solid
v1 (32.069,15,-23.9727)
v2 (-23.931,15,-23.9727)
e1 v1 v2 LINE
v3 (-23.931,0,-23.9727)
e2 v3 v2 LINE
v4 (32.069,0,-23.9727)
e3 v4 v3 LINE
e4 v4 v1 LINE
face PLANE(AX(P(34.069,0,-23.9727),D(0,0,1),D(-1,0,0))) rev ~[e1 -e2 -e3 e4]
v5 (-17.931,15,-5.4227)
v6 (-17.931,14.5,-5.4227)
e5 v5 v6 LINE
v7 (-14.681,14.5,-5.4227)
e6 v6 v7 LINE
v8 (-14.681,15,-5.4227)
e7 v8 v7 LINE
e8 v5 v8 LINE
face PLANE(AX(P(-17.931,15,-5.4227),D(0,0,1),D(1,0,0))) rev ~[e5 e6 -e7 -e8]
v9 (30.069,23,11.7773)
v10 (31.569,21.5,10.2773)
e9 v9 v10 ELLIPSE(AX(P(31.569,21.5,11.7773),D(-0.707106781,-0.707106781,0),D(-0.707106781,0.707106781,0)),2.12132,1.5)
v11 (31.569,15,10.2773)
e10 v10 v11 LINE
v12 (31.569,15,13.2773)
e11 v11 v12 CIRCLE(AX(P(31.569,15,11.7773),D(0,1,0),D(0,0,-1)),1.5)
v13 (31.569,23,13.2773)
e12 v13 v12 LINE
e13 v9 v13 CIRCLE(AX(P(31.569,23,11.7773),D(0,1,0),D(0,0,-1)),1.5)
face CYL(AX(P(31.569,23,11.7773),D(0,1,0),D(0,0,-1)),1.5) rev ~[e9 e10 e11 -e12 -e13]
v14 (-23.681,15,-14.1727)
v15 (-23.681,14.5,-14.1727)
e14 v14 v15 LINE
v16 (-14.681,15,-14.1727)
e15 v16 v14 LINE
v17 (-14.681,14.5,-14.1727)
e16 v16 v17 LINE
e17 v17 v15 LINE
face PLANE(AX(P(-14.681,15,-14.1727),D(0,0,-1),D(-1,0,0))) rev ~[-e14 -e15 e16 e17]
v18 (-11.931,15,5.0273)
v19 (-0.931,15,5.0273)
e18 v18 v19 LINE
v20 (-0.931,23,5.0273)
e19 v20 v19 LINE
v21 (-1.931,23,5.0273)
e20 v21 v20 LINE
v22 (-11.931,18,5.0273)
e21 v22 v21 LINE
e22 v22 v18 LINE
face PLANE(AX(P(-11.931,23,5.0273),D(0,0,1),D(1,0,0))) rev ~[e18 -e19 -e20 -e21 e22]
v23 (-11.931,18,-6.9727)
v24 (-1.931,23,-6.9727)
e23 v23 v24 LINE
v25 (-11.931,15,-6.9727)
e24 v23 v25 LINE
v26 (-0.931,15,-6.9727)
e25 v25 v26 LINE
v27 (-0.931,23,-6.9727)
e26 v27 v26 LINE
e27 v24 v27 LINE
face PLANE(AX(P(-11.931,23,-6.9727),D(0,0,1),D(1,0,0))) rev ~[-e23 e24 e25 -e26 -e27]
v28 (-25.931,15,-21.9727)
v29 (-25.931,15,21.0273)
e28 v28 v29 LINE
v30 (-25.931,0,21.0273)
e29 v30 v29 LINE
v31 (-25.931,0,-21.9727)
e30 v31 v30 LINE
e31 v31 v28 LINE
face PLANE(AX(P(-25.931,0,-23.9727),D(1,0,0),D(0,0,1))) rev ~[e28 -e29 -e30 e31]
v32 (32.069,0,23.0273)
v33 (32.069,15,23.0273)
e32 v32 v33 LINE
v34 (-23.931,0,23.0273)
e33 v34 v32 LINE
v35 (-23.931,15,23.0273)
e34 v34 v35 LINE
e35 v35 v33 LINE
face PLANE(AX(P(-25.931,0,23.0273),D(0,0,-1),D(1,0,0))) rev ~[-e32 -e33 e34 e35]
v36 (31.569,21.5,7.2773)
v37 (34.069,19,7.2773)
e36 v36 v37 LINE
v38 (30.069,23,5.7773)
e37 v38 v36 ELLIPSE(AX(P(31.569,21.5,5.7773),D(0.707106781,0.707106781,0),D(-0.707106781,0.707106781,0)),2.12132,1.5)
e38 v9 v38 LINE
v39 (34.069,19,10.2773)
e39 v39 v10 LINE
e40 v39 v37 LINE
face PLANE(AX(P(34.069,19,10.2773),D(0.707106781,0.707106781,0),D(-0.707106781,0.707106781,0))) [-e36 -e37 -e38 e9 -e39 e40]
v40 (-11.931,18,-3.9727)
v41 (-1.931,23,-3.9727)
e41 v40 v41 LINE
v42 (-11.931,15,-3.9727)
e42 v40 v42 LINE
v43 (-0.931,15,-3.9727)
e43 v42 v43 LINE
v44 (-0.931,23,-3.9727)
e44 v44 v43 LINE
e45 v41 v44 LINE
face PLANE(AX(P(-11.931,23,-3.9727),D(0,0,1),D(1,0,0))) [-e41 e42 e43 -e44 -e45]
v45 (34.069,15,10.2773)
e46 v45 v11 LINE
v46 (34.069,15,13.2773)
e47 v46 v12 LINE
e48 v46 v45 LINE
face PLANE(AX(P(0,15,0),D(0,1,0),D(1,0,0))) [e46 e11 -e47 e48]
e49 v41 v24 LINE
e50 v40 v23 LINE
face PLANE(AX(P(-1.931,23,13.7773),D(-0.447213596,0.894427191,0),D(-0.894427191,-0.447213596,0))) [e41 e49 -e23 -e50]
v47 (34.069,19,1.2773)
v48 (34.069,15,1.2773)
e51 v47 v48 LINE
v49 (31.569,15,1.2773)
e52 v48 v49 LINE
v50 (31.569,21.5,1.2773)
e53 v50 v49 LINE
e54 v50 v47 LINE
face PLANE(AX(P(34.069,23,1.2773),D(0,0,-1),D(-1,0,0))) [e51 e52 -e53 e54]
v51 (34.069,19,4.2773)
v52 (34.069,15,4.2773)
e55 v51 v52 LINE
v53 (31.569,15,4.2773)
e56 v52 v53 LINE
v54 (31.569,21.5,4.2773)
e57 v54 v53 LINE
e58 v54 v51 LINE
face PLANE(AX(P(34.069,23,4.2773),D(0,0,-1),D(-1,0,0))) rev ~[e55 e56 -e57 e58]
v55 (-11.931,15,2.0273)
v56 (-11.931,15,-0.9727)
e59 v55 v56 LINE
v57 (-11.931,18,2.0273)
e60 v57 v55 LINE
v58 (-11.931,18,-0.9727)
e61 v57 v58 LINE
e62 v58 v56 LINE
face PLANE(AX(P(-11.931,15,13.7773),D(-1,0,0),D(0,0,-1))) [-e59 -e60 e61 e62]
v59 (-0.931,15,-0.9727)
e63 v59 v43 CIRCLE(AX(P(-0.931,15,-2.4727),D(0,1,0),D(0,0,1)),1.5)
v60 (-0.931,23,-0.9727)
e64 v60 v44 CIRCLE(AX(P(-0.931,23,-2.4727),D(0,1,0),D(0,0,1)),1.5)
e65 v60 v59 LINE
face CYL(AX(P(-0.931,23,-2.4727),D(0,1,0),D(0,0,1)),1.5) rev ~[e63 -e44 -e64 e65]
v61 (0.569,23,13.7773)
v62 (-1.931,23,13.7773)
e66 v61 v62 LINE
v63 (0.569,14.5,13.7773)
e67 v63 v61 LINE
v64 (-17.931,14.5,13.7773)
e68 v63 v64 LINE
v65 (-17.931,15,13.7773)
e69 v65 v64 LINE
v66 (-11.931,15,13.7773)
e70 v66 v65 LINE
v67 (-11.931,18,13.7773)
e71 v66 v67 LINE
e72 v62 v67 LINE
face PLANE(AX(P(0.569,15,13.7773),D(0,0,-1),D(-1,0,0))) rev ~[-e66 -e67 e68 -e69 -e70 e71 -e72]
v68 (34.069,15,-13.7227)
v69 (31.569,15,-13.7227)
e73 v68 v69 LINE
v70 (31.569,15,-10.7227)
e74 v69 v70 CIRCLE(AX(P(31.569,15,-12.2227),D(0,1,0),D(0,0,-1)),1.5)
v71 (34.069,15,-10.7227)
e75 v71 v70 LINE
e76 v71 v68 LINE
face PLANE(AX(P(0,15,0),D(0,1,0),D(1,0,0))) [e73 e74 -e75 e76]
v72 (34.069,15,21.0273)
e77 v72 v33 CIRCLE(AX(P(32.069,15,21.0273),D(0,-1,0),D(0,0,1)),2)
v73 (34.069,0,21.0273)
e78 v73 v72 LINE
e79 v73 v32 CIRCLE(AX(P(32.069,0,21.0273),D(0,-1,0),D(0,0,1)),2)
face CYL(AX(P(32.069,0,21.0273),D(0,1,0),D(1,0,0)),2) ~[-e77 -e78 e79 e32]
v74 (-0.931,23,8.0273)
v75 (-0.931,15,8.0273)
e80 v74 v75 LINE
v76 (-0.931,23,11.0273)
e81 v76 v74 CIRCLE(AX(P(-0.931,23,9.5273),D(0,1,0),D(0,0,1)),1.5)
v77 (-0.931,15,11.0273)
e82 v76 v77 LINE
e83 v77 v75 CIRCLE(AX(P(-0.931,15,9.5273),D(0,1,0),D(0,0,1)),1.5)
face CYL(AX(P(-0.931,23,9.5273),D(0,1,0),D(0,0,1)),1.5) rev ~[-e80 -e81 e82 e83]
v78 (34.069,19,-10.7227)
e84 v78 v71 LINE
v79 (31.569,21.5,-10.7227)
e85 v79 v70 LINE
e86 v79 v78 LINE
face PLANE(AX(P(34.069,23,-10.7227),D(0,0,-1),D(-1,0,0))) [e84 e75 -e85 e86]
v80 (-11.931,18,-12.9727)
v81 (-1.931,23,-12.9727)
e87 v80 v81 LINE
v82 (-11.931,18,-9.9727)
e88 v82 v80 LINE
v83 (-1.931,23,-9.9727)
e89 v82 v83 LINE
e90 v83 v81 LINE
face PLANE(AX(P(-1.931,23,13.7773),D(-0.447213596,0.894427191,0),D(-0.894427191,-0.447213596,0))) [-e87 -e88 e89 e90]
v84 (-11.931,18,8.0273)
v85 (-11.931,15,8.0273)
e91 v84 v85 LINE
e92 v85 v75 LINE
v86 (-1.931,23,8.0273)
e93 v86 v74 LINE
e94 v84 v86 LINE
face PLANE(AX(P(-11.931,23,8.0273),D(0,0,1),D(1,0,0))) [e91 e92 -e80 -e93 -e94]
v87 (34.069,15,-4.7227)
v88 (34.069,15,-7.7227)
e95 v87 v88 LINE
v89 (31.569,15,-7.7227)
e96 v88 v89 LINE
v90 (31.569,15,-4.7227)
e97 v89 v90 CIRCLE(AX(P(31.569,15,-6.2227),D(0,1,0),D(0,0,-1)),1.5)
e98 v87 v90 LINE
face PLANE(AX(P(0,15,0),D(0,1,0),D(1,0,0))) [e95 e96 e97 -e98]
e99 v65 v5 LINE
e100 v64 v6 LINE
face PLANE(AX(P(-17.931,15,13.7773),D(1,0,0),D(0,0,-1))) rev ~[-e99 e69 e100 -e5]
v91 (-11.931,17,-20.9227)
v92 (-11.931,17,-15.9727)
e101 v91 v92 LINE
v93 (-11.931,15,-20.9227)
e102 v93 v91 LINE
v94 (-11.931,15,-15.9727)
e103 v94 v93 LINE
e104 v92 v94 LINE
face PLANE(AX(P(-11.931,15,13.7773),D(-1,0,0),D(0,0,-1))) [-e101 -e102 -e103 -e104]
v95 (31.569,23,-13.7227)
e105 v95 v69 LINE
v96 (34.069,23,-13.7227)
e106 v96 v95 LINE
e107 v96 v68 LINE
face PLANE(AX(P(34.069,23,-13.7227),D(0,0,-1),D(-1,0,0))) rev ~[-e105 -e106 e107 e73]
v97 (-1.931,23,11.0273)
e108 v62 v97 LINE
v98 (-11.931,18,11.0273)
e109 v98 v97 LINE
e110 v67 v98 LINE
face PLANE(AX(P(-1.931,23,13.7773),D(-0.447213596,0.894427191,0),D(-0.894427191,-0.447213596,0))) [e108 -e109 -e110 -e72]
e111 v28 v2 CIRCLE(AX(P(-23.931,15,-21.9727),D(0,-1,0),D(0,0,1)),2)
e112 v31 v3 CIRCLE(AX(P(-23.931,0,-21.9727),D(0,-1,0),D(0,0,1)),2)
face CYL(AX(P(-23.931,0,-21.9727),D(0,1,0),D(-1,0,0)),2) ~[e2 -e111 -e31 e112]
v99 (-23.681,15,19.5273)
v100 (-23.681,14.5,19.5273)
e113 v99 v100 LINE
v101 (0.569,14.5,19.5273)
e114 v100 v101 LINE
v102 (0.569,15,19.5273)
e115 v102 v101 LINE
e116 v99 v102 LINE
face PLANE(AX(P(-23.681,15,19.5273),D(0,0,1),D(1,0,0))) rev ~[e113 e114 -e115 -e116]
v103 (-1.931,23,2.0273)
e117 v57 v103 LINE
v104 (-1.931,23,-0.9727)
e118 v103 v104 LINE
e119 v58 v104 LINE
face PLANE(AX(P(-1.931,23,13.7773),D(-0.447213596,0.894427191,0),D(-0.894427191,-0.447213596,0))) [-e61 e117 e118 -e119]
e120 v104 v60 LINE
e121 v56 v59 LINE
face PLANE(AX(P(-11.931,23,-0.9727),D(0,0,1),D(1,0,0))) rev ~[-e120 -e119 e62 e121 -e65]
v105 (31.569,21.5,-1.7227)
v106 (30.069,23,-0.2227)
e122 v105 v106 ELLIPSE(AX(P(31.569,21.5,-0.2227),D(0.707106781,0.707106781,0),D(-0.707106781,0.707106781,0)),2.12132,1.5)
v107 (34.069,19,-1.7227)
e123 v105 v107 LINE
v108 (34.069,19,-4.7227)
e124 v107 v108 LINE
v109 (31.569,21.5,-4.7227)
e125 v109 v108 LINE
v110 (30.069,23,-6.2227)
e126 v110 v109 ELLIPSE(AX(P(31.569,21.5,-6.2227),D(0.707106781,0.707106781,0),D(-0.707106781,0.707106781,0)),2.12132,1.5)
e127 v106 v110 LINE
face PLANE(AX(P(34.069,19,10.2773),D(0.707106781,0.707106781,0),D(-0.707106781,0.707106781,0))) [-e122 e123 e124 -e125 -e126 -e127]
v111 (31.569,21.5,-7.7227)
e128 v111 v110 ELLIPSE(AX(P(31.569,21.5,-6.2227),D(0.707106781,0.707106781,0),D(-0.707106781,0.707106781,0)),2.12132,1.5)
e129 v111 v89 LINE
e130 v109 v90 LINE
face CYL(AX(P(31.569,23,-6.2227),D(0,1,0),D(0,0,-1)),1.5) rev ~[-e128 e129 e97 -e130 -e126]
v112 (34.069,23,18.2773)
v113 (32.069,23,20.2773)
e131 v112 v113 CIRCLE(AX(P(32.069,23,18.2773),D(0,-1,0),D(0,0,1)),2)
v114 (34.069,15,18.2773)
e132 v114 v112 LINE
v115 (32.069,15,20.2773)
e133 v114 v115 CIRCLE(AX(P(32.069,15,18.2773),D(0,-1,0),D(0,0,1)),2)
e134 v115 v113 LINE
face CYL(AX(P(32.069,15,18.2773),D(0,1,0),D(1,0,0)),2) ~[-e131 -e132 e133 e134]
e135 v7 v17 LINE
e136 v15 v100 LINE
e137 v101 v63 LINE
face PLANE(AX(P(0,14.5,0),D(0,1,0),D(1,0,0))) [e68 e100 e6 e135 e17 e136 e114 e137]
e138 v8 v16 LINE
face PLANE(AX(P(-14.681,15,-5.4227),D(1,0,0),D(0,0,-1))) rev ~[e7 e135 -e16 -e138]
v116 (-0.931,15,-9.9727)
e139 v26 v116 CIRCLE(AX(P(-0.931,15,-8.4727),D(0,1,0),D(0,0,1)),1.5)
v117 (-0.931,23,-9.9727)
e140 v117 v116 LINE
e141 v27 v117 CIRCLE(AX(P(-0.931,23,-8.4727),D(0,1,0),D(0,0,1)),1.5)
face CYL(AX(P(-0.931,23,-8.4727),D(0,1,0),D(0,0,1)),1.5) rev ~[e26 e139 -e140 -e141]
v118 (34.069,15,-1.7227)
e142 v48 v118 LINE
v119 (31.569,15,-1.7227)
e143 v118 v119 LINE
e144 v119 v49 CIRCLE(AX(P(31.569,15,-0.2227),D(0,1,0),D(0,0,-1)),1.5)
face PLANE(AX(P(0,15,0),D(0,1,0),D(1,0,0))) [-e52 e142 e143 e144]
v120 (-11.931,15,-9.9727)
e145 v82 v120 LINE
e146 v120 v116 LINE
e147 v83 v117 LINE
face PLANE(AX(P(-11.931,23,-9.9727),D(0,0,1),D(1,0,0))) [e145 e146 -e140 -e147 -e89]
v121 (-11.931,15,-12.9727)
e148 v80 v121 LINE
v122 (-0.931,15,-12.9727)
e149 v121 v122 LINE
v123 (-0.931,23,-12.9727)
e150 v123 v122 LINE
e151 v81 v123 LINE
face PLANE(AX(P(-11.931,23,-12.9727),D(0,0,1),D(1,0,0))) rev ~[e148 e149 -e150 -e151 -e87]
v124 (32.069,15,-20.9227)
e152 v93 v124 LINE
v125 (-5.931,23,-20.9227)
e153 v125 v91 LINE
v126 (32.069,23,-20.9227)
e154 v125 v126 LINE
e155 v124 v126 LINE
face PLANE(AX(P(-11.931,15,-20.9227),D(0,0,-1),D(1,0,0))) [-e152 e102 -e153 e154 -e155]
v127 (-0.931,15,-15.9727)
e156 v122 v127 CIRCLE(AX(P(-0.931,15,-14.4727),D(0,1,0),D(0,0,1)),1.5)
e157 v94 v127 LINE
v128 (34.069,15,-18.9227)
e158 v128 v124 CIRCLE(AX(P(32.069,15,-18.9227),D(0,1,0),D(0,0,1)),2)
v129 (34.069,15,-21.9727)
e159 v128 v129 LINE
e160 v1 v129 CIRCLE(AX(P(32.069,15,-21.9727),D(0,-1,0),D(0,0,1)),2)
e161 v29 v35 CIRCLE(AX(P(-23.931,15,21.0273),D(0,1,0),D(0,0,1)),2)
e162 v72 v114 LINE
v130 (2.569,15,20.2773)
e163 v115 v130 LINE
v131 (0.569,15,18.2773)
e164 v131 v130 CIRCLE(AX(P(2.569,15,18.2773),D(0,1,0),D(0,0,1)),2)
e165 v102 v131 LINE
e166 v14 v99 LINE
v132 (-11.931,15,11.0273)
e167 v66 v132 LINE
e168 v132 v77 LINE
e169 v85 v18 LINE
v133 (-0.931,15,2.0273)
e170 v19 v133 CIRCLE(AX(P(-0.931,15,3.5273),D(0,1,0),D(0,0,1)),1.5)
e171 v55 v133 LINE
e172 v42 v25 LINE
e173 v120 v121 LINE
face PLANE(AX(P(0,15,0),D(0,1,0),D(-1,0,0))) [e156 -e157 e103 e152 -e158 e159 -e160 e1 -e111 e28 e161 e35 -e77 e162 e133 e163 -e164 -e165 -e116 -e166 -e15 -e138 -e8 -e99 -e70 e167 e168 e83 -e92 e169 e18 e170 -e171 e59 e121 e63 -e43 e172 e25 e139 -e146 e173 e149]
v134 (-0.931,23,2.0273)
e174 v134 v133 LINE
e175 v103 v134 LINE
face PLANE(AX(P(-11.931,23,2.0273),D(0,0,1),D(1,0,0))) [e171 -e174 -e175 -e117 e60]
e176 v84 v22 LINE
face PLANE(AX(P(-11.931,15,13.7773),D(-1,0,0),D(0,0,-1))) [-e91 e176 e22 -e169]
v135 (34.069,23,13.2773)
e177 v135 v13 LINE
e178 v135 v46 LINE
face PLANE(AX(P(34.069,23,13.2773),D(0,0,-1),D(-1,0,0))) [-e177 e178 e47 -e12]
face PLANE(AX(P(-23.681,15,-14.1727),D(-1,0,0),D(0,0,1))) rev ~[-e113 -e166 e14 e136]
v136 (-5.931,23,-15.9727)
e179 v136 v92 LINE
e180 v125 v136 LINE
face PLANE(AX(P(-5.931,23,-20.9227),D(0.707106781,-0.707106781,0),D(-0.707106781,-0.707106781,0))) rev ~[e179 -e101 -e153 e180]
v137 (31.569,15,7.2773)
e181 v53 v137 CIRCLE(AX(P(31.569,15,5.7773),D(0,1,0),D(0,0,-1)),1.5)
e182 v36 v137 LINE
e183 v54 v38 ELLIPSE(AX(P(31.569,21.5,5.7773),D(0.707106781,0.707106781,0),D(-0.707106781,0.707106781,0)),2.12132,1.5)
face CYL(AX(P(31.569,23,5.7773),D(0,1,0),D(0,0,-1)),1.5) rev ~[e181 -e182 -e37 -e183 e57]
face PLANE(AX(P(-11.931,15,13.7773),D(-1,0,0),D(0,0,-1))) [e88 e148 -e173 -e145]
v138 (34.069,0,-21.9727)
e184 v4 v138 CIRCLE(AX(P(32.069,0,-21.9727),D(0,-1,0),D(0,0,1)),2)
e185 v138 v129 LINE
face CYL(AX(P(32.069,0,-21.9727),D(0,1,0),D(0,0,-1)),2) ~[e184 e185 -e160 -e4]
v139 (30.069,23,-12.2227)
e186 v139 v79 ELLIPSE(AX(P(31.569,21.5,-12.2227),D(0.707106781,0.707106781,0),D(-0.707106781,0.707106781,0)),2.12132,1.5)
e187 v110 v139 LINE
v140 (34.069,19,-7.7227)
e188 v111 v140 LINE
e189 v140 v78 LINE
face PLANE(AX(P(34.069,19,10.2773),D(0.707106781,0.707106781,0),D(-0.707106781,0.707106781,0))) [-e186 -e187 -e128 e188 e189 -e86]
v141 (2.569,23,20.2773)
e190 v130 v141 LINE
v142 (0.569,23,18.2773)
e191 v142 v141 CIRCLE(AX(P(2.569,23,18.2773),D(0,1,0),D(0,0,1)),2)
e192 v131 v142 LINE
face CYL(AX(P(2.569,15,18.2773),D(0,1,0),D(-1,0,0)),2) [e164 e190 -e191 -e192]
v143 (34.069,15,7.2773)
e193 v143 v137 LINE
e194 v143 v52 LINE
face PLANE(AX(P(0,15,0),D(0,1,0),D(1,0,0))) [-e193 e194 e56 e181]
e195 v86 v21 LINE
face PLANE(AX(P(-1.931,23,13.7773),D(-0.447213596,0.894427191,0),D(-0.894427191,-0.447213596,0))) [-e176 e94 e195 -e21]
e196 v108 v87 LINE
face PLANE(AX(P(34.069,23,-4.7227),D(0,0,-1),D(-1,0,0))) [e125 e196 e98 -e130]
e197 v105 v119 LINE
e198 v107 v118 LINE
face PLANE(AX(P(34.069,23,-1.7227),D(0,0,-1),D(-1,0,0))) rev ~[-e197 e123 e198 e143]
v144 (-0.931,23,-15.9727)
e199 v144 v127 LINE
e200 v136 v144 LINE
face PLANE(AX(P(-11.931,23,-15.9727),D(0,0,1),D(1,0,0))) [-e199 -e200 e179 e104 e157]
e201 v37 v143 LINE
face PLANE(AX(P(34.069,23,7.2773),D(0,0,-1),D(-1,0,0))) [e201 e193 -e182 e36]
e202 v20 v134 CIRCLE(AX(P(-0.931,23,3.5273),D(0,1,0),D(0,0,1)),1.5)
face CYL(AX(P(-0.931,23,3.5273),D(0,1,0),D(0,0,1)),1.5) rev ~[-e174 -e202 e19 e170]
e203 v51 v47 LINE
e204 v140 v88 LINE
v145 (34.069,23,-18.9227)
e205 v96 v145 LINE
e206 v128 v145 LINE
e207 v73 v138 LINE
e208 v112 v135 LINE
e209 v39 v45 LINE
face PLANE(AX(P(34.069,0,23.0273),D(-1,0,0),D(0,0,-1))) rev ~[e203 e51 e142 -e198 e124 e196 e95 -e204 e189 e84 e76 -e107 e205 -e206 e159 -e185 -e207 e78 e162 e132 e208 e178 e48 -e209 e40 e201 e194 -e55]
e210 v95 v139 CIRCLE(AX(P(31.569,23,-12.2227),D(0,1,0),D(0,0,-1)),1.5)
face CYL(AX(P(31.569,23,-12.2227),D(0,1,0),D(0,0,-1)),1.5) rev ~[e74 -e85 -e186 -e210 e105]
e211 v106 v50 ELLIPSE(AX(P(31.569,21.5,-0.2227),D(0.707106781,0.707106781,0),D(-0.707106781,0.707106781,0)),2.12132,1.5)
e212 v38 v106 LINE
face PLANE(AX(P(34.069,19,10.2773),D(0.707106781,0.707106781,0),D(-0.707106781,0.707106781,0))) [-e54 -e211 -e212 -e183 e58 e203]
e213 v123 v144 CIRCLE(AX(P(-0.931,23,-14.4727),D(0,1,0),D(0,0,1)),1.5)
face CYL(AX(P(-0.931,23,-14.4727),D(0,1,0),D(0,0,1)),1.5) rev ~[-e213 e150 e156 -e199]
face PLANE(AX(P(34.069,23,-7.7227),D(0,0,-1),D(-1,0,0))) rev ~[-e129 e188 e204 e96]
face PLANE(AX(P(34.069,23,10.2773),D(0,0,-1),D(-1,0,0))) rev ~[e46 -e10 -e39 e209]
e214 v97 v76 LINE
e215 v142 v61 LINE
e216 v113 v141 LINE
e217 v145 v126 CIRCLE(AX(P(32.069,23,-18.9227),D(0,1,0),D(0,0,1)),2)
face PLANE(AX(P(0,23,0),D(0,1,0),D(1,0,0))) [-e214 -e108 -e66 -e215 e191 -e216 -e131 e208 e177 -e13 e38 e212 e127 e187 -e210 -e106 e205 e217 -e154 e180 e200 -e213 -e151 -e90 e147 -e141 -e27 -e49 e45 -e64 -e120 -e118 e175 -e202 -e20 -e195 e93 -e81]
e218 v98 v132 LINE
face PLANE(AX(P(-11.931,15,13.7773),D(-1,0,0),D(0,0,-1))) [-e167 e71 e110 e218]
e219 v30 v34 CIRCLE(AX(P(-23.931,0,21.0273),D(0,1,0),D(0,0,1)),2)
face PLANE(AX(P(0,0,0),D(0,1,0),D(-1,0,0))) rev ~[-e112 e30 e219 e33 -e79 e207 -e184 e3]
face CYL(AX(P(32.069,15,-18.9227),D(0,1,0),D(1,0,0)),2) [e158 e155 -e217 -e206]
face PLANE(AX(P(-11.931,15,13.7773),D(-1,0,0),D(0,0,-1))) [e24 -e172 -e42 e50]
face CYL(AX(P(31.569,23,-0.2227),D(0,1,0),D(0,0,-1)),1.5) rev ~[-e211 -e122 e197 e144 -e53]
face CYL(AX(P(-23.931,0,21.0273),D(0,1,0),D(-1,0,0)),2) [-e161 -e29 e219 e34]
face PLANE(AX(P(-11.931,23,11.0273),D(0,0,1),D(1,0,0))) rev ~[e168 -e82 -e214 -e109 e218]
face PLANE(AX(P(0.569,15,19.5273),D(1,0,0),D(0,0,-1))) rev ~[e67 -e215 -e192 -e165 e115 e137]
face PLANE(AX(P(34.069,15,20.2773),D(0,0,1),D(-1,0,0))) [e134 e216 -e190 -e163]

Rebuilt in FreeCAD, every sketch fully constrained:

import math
import FreeCAD as App
import Part
import Sketcher

V = App.Vector


def edges_at(feature, points):
    """Names of the edges that pass closest to the given points."""
    edges = feature.Shape.Edges
    near = lambda p: min(range(len(edges)), key=lambda i: edges[i].distToShape(Part.Vertex(*p))[0])
    return sorted({f"Edge{near(p) + 1}" for p in points})

doc = App.newDocument("Part")
body = doc.addObject("PartDesign::Body", "Body")

# Sketch on XZ plane
sketch1 = body.newObject("Sketcher::SketchObject", "Sketch")
sketch1.AttachmentSupport = (doc.getObject("XZ_Plane"), [""])
sketch1.MapMode = "FlatFace"
sketch1.addGeometry(Part.LineSegment(V(-26, -24, 0), V(-26, 23, 0)), False)
sketch1.addGeometry(Part.LineSegment(V(-26, 23, 0), V(34, 23, 0)), False)
sketch1.addGeometry(Part.LineSegment(V(34, 23, 0), V(34, -24, 0)), False)
sketch1.addGeometry(Part.LineSegment(V(34, -24, 0), V(-26, -24, 0)), False)
sketch1.addConstraint(Sketcher.Constraint("Coincident", 0, 2, 1, 1))
sketch1.addConstraint(Sketcher.Constraint("Coincident", 1, 2, 2, 1))
sketch1.addConstraint(Sketcher.Constraint("Coincident", 2, 2, 3, 1))
sketch1.addConstraint(Sketcher.Constraint("Coincident", 3, 2, 0, 1))
sketch1.addConstraint(Sketcher.Constraint("Vertical", 0))
sketch1.addConstraint(Sketcher.Constraint("Horizontal", 1))
sketch1.addConstraint(Sketcher.Constraint("Vertical", 2))
sketch1.addConstraint(Sketcher.Constraint("Horizontal", 3))
sketch1.addConstraint(Sketcher.Constraint("DistanceX", 1, 1, 1, 2, 60.0))
sketch1.addConstraint(Sketcher.Constraint("DistanceY", 0, 1, 0, 2, 47.0))
sketch1.addConstraint(Sketcher.Constraint("DistanceX", 0, 2, -1, 1, 25.931))
sketch1.addConstraint(Sketcher.Constraint("DistanceY", -1, 1, 0, 2, 23.0273))
pad1 = body.newObject("PartDesign::Pad", "Pad")
pad1.Profile = sketch1
pad1.Length = 15
pad1.Reversed = True
doc.recompute()

fillet = body.newObject("PartDesign::Fillet", "Fillet")
fillet.Base = (pad1, edges_at(pad1, [
    (34.069, 7.5, 23.027),
    (34.069, 7.5, -23.973),
    (-25.931, 7.5, 23.027),
    (-25.931, 7.5, -23.973),
]))
fillet.Radius = 2

# Sketch on XZ plane
sketch2 = body.newObject("Sketcher::SketchObject", "Sketch001")
sketch2.AttachmentSupport = (doc.getObject("XZ_Plane"), [""])
sketch2.MapMode = "FlatFace"
sketch2.AttachmentOffset = App.Placement(V(0, 0, -15), App.Rotation())
sketch2.addGeometry(Part.LineSegment(V(1, 20, 0), V(34, 20, 0)), False)
sketch2.addGeometry(Part.LineSegment(V(34, 20, 0), V(34, -21, 0)), False)
sketch2.addGeometry(Part.LineSegment(V(34, -21, 0), V(-12, -21, 0)), False)
sketch2.addGeometry(Part.LineSegment(V(-12, -21, 0), V(-12, 14, 0)), False)
sketch2.addGeometry(Part.LineSegment(V(-12, 14, 0), V(1, 14, 0)), False)
sketch2.addGeometry(Part.LineSegment(V(1, 14, 0), V(1, 20, 0)), False)
sketch2.addConstraint(Sketcher.Constraint("Coincident", 0, 2, 1, 1))
sketch2.addConstraint(Sketcher.Constraint("Coincident", 1, 2, 2, 1))
sketch2.addConstraint(Sketcher.Constraint("Coincident", 2, 2, 3, 1))
sketch2.addConstraint(Sketcher.Constraint("Coincident", 3, 2, 4, 1))
sketch2.addConstraint(Sketcher.Constraint("Coincident", 4, 2, 5, 1))
sketch2.addConstraint(Sketcher.Constraint("Coincident", 5, 2, 0, 1))
sketch2.addConstraint(Sketcher.Constraint("Horizontal", 0))
sketch2.addConstraint(Sketcher.Constraint("Vertical", 1))
sketch2.addConstraint(Sketcher.Constraint("Horizontal", 2))
sketch2.addConstraint(Sketcher.Constraint("Vertical", 3))
sketch2.addConstraint(Sketcher.Constraint("Horizontal", 4))
sketch2.addConstraint(Sketcher.Constraint("Vertical", 5))
sketch2.addConstraint(Sketcher.Constraint("DistanceX", 2, 2, 2, 1, 46.0))
sketch2.addConstraint(Sketcher.Constraint("DistanceX", 0, 1, 0, 2, 33.5))
sketch2.addConstraint(Sketcher.Constraint("DistanceY", 1, 2, 1, 1, 41.2))
sketch2.addConstraint(Sketcher.Constraint("DistanceY", 5, 1, 5, 2, 6.5))
sketch2.addConstraint(Sketcher.Constraint("DistanceX", -1, 1, 0, 2, 34.069))
sketch2.addConstraint(Sketcher.Constraint("DistanceY", -1, 1, 0, 2, 20.2773))
pad2 = body.newObject("PartDesign::Pad", "Pad001")
pad2.Profile = sketch2
pad2.Length = 8
pad2.Reversed = True
doc.recompute()

fillet2 = body.newObject("PartDesign::Fillet", "Fillet001")
fillet2.Base = (pad2, edges_at(pad2, [(34.069, 19, -20.923), (34.069, 19, 20.277), (0.569, 19, 20.277)]))
fillet2.Radius = 2

# Sketch on XY plane
sketch3 = body.newObject("Sketcher::SketchObject", "Sketch002")
sketch3.AttachmentSupport = (doc.getObject("XY_Plane"), [""])
sketch3.MapMode = "FlatFace"
sketch3.AttachmentOffset = App.Placement(V(0, 0, 13.7773), App.Rotation())
sketch3.addGeometry(Part.LineSegment(V(-12, 18, 0), V(-2, 23, 0)), False)
sketch3.addGeometry(Part.LineSegment(V(-2, 23, 0), V(-12, 23, 0)), False)
sketch3.addGeometry(Part.LineSegment(V(-12, 23, 0), V(-12, 18, 0)), False)
sketch3.addConstraint(Sketcher.Constraint("Coincident", 0, 2, 1, 1))
sketch3.addConstraint(Sketcher.Constraint("Coincident", 1, 2, 2, 1))
sketch3.addConstraint(Sketcher.Constraint("Coincident", 2, 2, 0, 1))
sketch3.addConstraint(Sketcher.Constraint("Horizontal", 1))
sketch3.addConstraint(Sketcher.Constraint("Vertical", 2))
sketch3.addConstraint(Sketcher.Constraint("DistanceX", 1, 2, 1, 1, 10.0))
sketch3.addConstraint(Sketcher.Constraint("DistanceY", 2, 2, 2, 1, 5.0))
sketch3.addConstraint(Sketcher.Constraint("DistanceY", -1, 1, 0, 2, 23.0))
sketch3.addConstraint(Sketcher.Constraint("DistanceX", 0, 2, -1, 1, 1.931))
pocket1 = body.newObject("PartDesign::Pocket", "Pocket")
pocket1.Profile = sketch3
pocket1.Length = 27

# Sketch on XY plane
sketch4 = body.newObject("Sketcher::SketchObject", "Sketch003")
sketch4.AttachmentSupport = (doc.getObject("XY_Plane"), [""])
sketch4.MapMode = "FlatFace"
sketch4.AttachmentOffset = App.Placement(V(0, 0, -20.9227), App.Rotation())
sketch4.addGeometry(Part.LineSegment(V(-12, 23, 0), V(-6, 23, 0)), False)
sketch4.addGeometry(Part.LineSegment(V(-6, 23, 0), V(-12, 17, 0)), False)
sketch4.addGeometry(Part.LineSegment(V(-12, 17, 0), V(-12, 23, 0)), False)
sketch4.addConstraint(Sketcher.Constraint("Coincident", 0, 2, 1, 1))
sketch4.addConstraint(Sketcher.Constraint("Coincident", 1, 2, 2, 1))
sketch4.addConstraint(Sketcher.Constraint("Coincident", 2, 2, 0, 1))
sketch4.addConstraint(Sketcher.Constraint("Horizontal", 0))
sketch4.addConstraint(Sketcher.Constraint("Vertical", 2))
sketch4.addConstraint(Sketcher.Constraint("Equal", 0, 2))
sketch4.addConstraint(Sketcher.Constraint("DistanceX", 0, 1, 0, 2, 6.0))
sketch4.addConstraint(Sketcher.Constraint("DistanceY", -1, 1, 0, 2, 23.0))
sketch4.addConstraint(Sketcher.Constraint("DistanceX", 0, 2, -1, 1, 5.931))
pocket2 = body.newObject("PartDesign::Pocket", "Pocket001")
pocket2.Profile = sketch4
pocket2.Length = 5
pocket2.Reversed = True

# Sketch on XZ plane
sketch5 = body.newObject("Sketcher::SketchObject", "Sketch004")
sketch5.AttachmentSupport = (doc.getObject("XZ_Plane"), [""])
sketch5.MapMode = "FlatFace"
sketch5.AttachmentOffset = App.Placement(V(0, 0, -23), App.Rotation())
sketch5.addGeometry(Part.LineSegment(V(-11.9, -16, 0), V(-11.9, -13, 0)), False)
sketch5.addGeometry(Part.LineSegment(V(-11.9, -13, 0), V(-0.9, -13, 0)), False)
sketch5.addGeometry(Part.ArcOfCircle(Part.Circle(V(-0.9, -14.5, 0), V(0, 0, 1), 1.5), math.radians(-90), math.radians(90)), False)
sketch5.addGeometry(Part.LineSegment(V(-0.9, -16, 0), V(-11.9, -16, 0)), False)
sketch5.addGeometry(Part.LineSegment(V(-11.9, -10, 0), V(-11.9, -7, 0)), False)
sketch5.addGeometry(Part.LineSegment(V(-11.9, -7, 0), V(-0.9, -7, 0)), False)
sketch5.addGeometry(Part.ArcOfCircle(Part.Circle(V(-0.9, -8.5, 0), V(0, 0, 1), 1.5), math.radians(-90), math.radians(90)), False)
sketch5.addGeometry(Part.LineSegment(V(-0.9, -10, 0), V(-11.9, -10, 0)), False)
sketch5.addGeometry(Part.LineSegment(V(-11.9, -4, 0), V(-11.9, -1, 0)), False)
sketch5.addGeometry(Part.LineSegment(V(-11.9, -1, 0), V(-0.9, -1, 0)), False)
sketch5.addGeometry(Part.ArcOfCircle(Part.Circle(V(-0.9, -2.5, 0), V(0, 0, 1), 1.5), math.radians(-90), math.radians(90)), False)
sketch5.addGeometry(Part.LineSegment(V(-0.9, -4, 0), V(-11.9, -4, 0)), False)
sketch5.addGeometry(Part.LineSegment(V(-11.9, 2, 0), V(-11.9, 5, 0)), False)
sketch5.addGeometry(Part.LineSegment(V(-11.9, 5, 0), V(-0.9, 5, 0)), False)
sketch5.addGeometry(Part.ArcOfCircle(Part.Circle(V(-0.9, 3.5, 0), V(0, 0, 1), 1.5), math.radians(-90), math.radians(90)), False)
sketch5.addGeometry(Part.LineSegment(V(-0.9, 2, 0), V(-11.9, 2, 0)), False)
sketch5.addGeometry(Part.LineSegment(V(-11.9, 8, 0), V(-11.9, 11, 0)), False)
sketch5.addGeometry(Part.LineSegment(V(-11.9, 11, 0), V(-0.9, 11, 0)), False)
sketch5.addGeometry(Part.ArcOfCircle(Part.Circle(V(-0.9, 9.5, 0), V(0, 0, 1), 1.5), math.radians(-90), math.radians(90)), False)
sketch5.addGeometry(Part.LineSegment(V(-0.9, 8, 0), V(-11.9, 8, 0)), False)
sketch5.addConstraint(Sketcher.Constraint("Coincident", 0, 2, 1, 1))
sketch5.addConstraint(Sketcher.Constraint("Tangent", 1, 2, 2, 2))
sketch5.addConstraint(Sketcher.Constraint("Tangent", 2, 1, 3, 1))
sketch5.addConstraint(Sketcher.Constraint("Coincident", 3, 2, 0, 1))
sketch5.addConstraint(Sketcher.Constraint("Coincident", 4, 2, 5, 1))
sketch5.addConstraint(Sketcher.Constraint("Tangent", 5, 2, 6, 2))
sketch5.addConstraint(Sketcher.Constraint("Tangent", 6, 1, 7, 1))
sketch5.addConstraint(Sketcher.Constraint("Coincident", 7, 2, 4, 1))
sketch5.addConstraint(Sketcher.Constraint("Coincident", 8, 2, 9, 1))
sketch5.addConstraint(Sketcher.Constraint("Tangent", 9, 2, 10, 2))
sketch5.addConstraint(Sketcher.Constraint("Tangent", 10, 1, 11, 1))
sketch5.addConstraint(Sketcher.Constraint("Coincident", 11, 2, 8, 1))
sketch5.addConstraint(Sketcher.Constraint("Coincident", 12, 2, 13, 1))
sketch5.addConstraint(Sketcher.Constraint("Tangent", 13, 2, 14, 2))
sketch5.addConstraint(Sketcher.Constraint("Tangent", 14, 1, 15, 1))
sketch5.addConstraint(Sketcher.Constraint("Coincident", 15, 2, 12, 1))
sketch5.addConstraint(Sketcher.Constraint("Coincident", 16, 2, 17, 1))
sketch5.addConstraint(Sketcher.Constraint("Tangent", 17, 2, 18, 2))
sketch5.addConstraint(Sketcher.Constraint("Tangent", 18, 1, 19, 1))
sketch5.addConstraint(Sketcher.Constraint("Coincident", 19, 2, 16, 1))
sketch5.addConstraint(Sketcher.Constraint("Vertical", 0))
sketch5.addConstraint(Sketcher.Constraint("Horizontal", 1))
sketch5.addConstraint(Sketcher.Constraint("Horizontal", 3))
sketch5.addConstraint(Sketcher.Constraint("Vertical", 4))
sketch5.addConstraint(Sketcher.Constraint("Horizontal", 5))
sketch5.addConstraint(Sketcher.Constraint("Horizontal", 7))
sketch5.addConstraint(Sketcher.Constraint("Vertical", 8))
sketch5.addConstraint(Sketcher.Constraint("Horizontal", 9))
sketch5.addConstraint(Sketcher.Constraint("Horizontal", 11))
sketch5.addConstraint(Sketcher.Constraint("Vertical", 12))
sketch5.addConstraint(Sketcher.Constraint("Horizontal", 13))
sketch5.addConstraint(Sketcher.Constraint("Horizontal", 15))
sketch5.addConstraint(Sketcher.Constraint("Vertical", 16))
sketch5.addConstraint(Sketcher.Constraint("Horizontal", 17))
sketch5.addConstraint(Sketcher.Constraint("Horizontal", 19))
sketch5.addConstraint(Sketcher.Constraint("Equal", 2, 6))
sketch5.addConstraint(Sketcher.Constraint("Equal", 6, 10))
sketch5.addConstraint(Sketcher.Constraint("Equal", 10, 14))
sketch5.addConstraint(Sketcher.Constraint("Equal", 14, 18))
sketch5.addConstraint(Sketcher.Constraint("Vertical", 2, 3, 6, 3))
sketch5.addConstraint(Sketcher.Constraint("Vertical", 6, 3, 10, 3))
sketch5.addConstraint(Sketcher.Constraint("Vertical", 10, 3, 14, 3))
sketch5.addConstraint(Sketcher.Constraint("Vertical", 14, 3, 18, 3))
sketch5.addConstraint(Sketcher.Constraint("Vertical", 3, 2, 4, 2))
sketch5.addConstraint(Sketcher.Constraint("Vertical", 7, 2, 8, 2))
sketch5.addConstraint(Sketcher.Constraint("Vertical", 11, 2, 12, 2))
sketch5.addConstraint(Sketcher.Constraint("Vertical", 15, 2, 16, 2))
sketch5.addConstraint(Sketcher.Constraint("Radius", 2, 1.5))
sketch5.addConstraint(Sketcher.Constraint("DistanceX", 1, 1, 1, 2, 11.0))
sketch5.addConstraint(Sketcher.Constraint("DistanceY", 2, 3, 6, 3, 6.0))
sketch5.addConstraint(Sketcher.Constraint("DistanceY", 6, 3, 10, 3, 6.0))
sketch5.addConstraint(Sketcher.Constraint("DistanceY", 10, 3, 14, 3, 6.0))
sketch5.addConstraint(Sketcher.Constraint("DistanceY", 14, 3, 18, 3, 6.0))
sketch5.addConstraint(Sketcher.Constraint("DistanceX", 2, 3, -1, 1, 0.931))
sketch5.addConstraint(Sketcher.Constraint("DistanceY", 2, 3, -1, 1, 14.4727))
pocket3 = body.newObject("PartDesign::Pocket", "Pocket002")
pocket3.Profile = sketch5
pocket3.Length = 8
pocket3.Reversed = True

# Sketch on XZ plane
sketch6 = body.newObject("Sketcher::SketchObject", "Sketch005")
sketch6.AttachmentSupport = (doc.getObject("XZ_Plane"), [""])
sketch6.MapMode = "FlatFace"
sketch6.AttachmentOffset = App.Placement(V(0, 0, -23), App.Rotation())
sketch6.addGeometry(Part.LineSegment(V(31.6, 13.3, 0), V(34.1, 13.3, 0)), False)
sketch6.addGeometry(Part.LineSegment(V(34.1, 13.3, 0), V(34.1, 10.3, 0)), False)
sketch6.addGeometry(Part.LineSegment(V(34.1, 10.3, 0), V(31.6, 10.3, 0)), False)
sketch6.addGeometry(Part.ArcOfCircle(Part.Circle(V(31.6, 11.8, 0), V(0, 0, 1), 1.5), math.radians(90), math.radians(270)), False)
sketch6.addGeometry(Part.LineSegment(V(31.6, -10.7, 0), V(34.1, -10.7, 0)), False)
sketch6.addGeometry(Part.LineSegment(V(34.1, -10.7, 0), V(34.1, -13.7, 0)), False)
sketch6.addGeometry(Part.LineSegment(V(34.1, -13.7, 0), V(31.6, -13.7, 0)), False)
sketch6.addGeometry(Part.ArcOfCircle(Part.Circle(V(31.6, -12.2, 0), V(0, 0, 1), 1.5), math.radians(90), math.radians(270)), False)
sketch6.addGeometry(Part.LineSegment(V(31.6, -4.7, 0), V(34.1, -4.7, 0)), False)
sketch6.addGeometry(Part.LineSegment(V(34.1, -4.7, 0), V(34.1, -7.7, 0)), False)
sketch6.addGeometry(Part.LineSegment(V(34.1, -7.7, 0), V(31.6, -7.7, 0)), False)
sketch6.addGeometry(Part.ArcOfCircle(Part.Circle(V(31.6, -6.2, 0), V(0, 0, 1), 1.5), math.radians(90), math.radians(270)), False)
sketch6.addGeometry(Part.LineSegment(V(31.6, 1.3, 0), V(34.1, 1.3, 0)), False)
sketch6.addGeometry(Part.LineSegment(V(34.1, 1.3, 0), V(34.1, -1.7, 0)), False)
sketch6.addGeometry(Part.LineSegment(V(34.1, -1.7, 0), V(31.6, -1.7, 0)), False)
sketch6.addGeometry(Part.ArcOfCircle(Part.Circle(V(31.6, -0.2, 0), V(0, 0, 1), 1.5), math.radians(90), math.radians(270)), False)
sketch6.addGeometry(Part.LineSegment(V(31.6, 7.3, 0), V(34.1, 7.3, 0)), False)
sketch6.addGeometry(Part.LineSegment(V(34.1, 7.3, 0), V(34.1, 4.3, 0)), False)
sketch6.addGeometry(Part.LineSegment(V(34.1, 4.3, 0), V(31.6, 4.3, 0)), False)
sketch6.addGeometry(Part.ArcOfCircle(Part.Circle(V(31.6, 5.8, 0), V(0, 0, 1), 1.5), math.radians(90), math.radians(270)), False)
sketch6.addConstraint(Sketcher.Constraint("Coincident", 0, 2, 1, 1))
sketch6.addConstraint(Sketcher.Constraint("Coincident", 1, 2, 2, 1))
sketch6.addConstraint(Sketcher.Constraint("Tangent", 2, 2, 3, 2))
sketch6.addConstraint(Sketcher.Constraint("Tangent", 3, 1, 0, 1))
sketch6.addConstraint(Sketcher.Constraint("Coincident", 4, 2, 5, 1))
sketch6.addConstraint(Sketcher.Constraint("Coincident", 5, 2, 6, 1))
sketch6.addConstraint(Sketcher.Constraint("Tangent", 6, 2, 7, 2))
sketch6.addConstraint(Sketcher.Constraint("Tangent", 7, 1, 4, 1))
sketch6.addConstraint(Sketcher.Constraint("Coincident", 8, 2, 9, 1))
sketch6.addConstraint(Sketcher.Constraint("Coincident", 9, 2, 10, 1))
sketch6.addConstraint(Sketcher.Constraint("Tangent", 10, 2, 11, 2))
sketch6.addConstraint(Sketcher.Constraint("Tangent", 11, 1, 8, 1))
sketch6.addConstraint(Sketcher.Constraint("Coincident", 12, 2, 13, 1))
sketch6.addConstraint(Sketcher.Constraint("Coincident", 13, 2, 14, 1))
sketch6.addConstraint(Sketcher.Constraint("Tangent", 14, 2, 15, 2))
sketch6.addConstraint(Sketcher.Constraint("Tangent", 15, 1, 12, 1))
sketch6.addConstraint(Sketcher.Constraint("Coincident", 16, 2, 17, 1))
sketch6.addConstraint(Sketcher.Constraint("Coincident", 17, 2, 18, 1))
sketch6.addConstraint(Sketcher.Constraint("Tangent", 18, 2, 19, 2))
sketch6.addConstraint(Sketcher.Constraint("Tangent", 19, 1, 16, 1))
sketch6.addConstraint(Sketcher.Constraint("Horizontal", 0))
sketch6.addConstraint(Sketcher.Constraint("Vertical", 1))
sketch6.addConstraint(Sketcher.Constraint("Horizontal", 2))
sketch6.addConstraint(Sketcher.Constraint("Horizontal", 4))
sketch6.addConstraint(Sketcher.Constraint("Vertical", 5))
sketch6.addConstraint(Sketcher.Constraint("Horizontal", 6))
sketch6.addConstraint(Sketcher.Constraint("Horizontal", 8))
sketch6.addConstraint(Sketcher.Constraint("Vertical", 9))
sketch6.addConstraint(Sketcher.Constraint("Horizontal", 10))
sketch6.addConstraint(Sketcher.Constraint("Horizontal", 12))
sketch6.addConstraint(Sketcher.Constraint("Vertical", 13))
sketch6.addConstraint(Sketcher.Constraint("Horizontal", 14))
sketch6.addConstraint(Sketcher.Constraint("Horizontal", 16))
sketch6.addConstraint(Sketcher.Constraint("Vertical", 17))
sketch6.addConstraint(Sketcher.Constraint("Horizontal", 18))
sketch6.addConstraint(Sketcher.Constraint("Equal", 3, 7))
sketch6.addConstraint(Sketcher.Constraint("Equal", 7, 11))
sketch6.addConstraint(Sketcher.Constraint("Equal", 11, 15))
sketch6.addConstraint(Sketcher.Constraint("Equal", 15, 19))
sketch6.addConstraint(Sketcher.Constraint("Vertical", 3, 3, 7, 3))
sketch6.addConstraint(Sketcher.Constraint("Vertical", 7, 3, 11, 3))
sketch6.addConstraint(Sketcher.Constraint("Vertical", 11, 3, 15, 3))
sketch6.addConstraint(Sketcher.Constraint("Vertical", 15, 3, 19, 3))
sketch6.addConstraint(Sketcher.Constraint("Vertical", 1, 2, 4, 2))
sketch6.addConstraint(Sketcher.Constraint("Vertical", 5, 2, 8, 2))
sketch6.addConstraint(Sketcher.Constraint("Vertical", 9, 2, 12, 2))
sketch6.addConstraint(Sketcher.Constraint("Vertical", 13, 2, 16, 2))
sketch6.addConstraint(Sketcher.Constraint("Radius", 3, 1.5))
sketch6.addConstraint(Sketcher.Constraint("DistanceX", 0, 1, 0, 2, 2.5))
sketch6.addConstraint(Sketcher.Constraint("DistanceY", 7, 3, 11, 3, 6.0))
sketch6.addConstraint(Sketcher.Constraint("DistanceY", 11, 3, 15, 3, 6.0))
sketch6.addConstraint(Sketcher.Constraint("DistanceY", 19, 3, 3, 3, 6.0))
sketch6.addConstraint(Sketcher.Constraint("DistanceY", 15, 3, 19, 3, 6.0))
sketch6.addConstraint(Sketcher.Constraint("DistanceX", -1, 1, 3, 3, 31.569))
sketch6.addConstraint(Sketcher.Constraint("DistanceY", -1, 1, 3, 3, 11.7773))
pocket4 = body.newObject("PartDesign::Pocket", "Pocket003")
pocket4.Profile = sketch6
pocket4.Length = 8
pocket4.Reversed = True

# Sketch on XY plane
sketch7 = body.newObject("Sketcher::SketchObject", "Sketch006")
sketch7.AttachmentSupport = (doc.getObject("XY_Plane"), [""])
sketch7.MapMode = "FlatFace"
sketch7.AttachmentOffset = App.Placement(V(0, 0, 10.2773), App.Rotation())
sketch7.addGeometry(Part.LineSegment(V(34.1, 23, 0), V(30.1, 23, 0)), False)
sketch7.addGeometry(Part.LineSegment(V(30.1, 23, 0), V(34.1, 19, 0)), False)
sketch7.addGeometry(Part.LineSegment(V(34.1, 19, 0), V(34.1, 23, 0)), False)
sketch7.addConstraint(Sketcher.Constraint("Coincident", 0, 2, 1, 1))
sketch7.addConstraint(Sketcher.Constraint("Coincident", 1, 2, 2, 1))
sketch7.addConstraint(Sketcher.Constraint("Coincident", 2, 2, 0, 1))
sketch7.addConstraint(Sketcher.Constraint("Horizontal", 0))
sketch7.addConstraint(Sketcher.Constraint("Vertical", 2))
sketch7.addConstraint(Sketcher.Constraint("Equal", 0, 2))
sketch7.addConstraint(Sketcher.Constraint("DistanceX", 0, 2, 0, 1, 4.0))
sketch7.addConstraint(Sketcher.Constraint("DistanceY", -1, 1, 0, 2, 23.0))
sketch7.addConstraint(Sketcher.Constraint("DistanceX", -1, 1, 0, 2, 30.069))
pocket5 = body.newObject("PartDesign::Pocket", "Pocket004")
pocket5.Profile = sketch7
pocket5.Length = 22.5

# Sketch on XY plane
sketch8 = body.newObject("Sketcher::SketchObject", "Sketch007")
sketch8.AttachmentSupport = (doc.getObject("XY_Plane"), [""])
sketch8.MapMode = "FlatFace"
sketch8.AttachmentOffset = App.Placement(V(0, 0, 10.2773), App.Rotation())
sketch8.addGeometry(Part.LineSegment(V(34.1, 23, 0), V(30.1, 23, 0)), False)
sketch8.addGeometry(Part.LineSegment(V(30.1, 23, 0), V(34.1, 19, 0)), False)
sketch8.addGeometry(Part.LineSegment(V(34.1, 19, 0), V(34.1, 23, 0)), False)
sketch8.addConstraint(Sketcher.Constraint("Coincident", 0, 2, 1, 1))
sketch8.addConstraint(Sketcher.Constraint("Coincident", 1, 2, 2, 1))
sketch8.addConstraint(Sketcher.Constraint("Coincident", 2, 2, 0, 1))
sketch8.addConstraint(Sketcher.Constraint("Horizontal", 0))
sketch8.addConstraint(Sketcher.Constraint("Vertical", 2))
sketch8.addConstraint(Sketcher.Constraint("Equal", 0, 2))
sketch8.addConstraint(Sketcher.Constraint("DistanceX", 0, 2, 0, 1, 4.0))
sketch8.addConstraint(Sketcher.Constraint("DistanceY", -1, 1, 0, 2, 23.0))
sketch8.addConstraint(Sketcher.Constraint("DistanceX", -1, 1, 0, 2, 30.069))
pocket6 = body.newObject("PartDesign::Pocket", "Pocket005")
pocket6.Profile = sketch8
pocket6.Length = 1.5
pocket6.Reversed = True

# Sketch on XZ plane
sketch9 = body.newObject("Sketcher::SketchObject", "Sketch008")
sketch9.AttachmentSupport = (doc.getObject("XZ_Plane"), [""])
sketch9.MapMode = "FlatFace"
sketch9.AttachmentOffset = App.Placement(V(0, 0, -15), App.Rotation())
sketch9.addGeometry(Part.LineSegment(V(-14.7, -5.4, 0), V(-14.7, -14.2, 0)), False)
sketch9.addGeometry(Part.LineSegment(V(-14.7, -14.2, 0), V(-23.7, -14.2, 0)), False)
sketch9.addGeometry(Part.LineSegment(V(-23.7, -14.2, 0), V(-23.7, 19.5, 0)), False)
sketch9.addGeometry(Part.LineSegment(V(-23.7, 19.5, 0), V(0.6, 19.5, 0)), False)
sketch9.addGeometry(Part.LineSegment(V(0.6, 19.5, 0), V(0.6, 13.8, 0)), False)
sketch9.addGeometry(Part.LineSegment(V(0.6, 13.8, 0), V(-17.9, 13.8, 0)), False)
sketch9.addGeometry(Part.LineSegment(V(-17.9, 13.8, 0), V(-17.9, -5.4, 0)), False)
sketch9.addGeometry(Part.LineSegment(V(-17.9, -5.4, 0), V(-14.7, -5.4, 0)), False)
sketch9.addConstraint(Sketcher.Constraint("Coincident", 0, 2, 1, 1))
sketch9.addConstraint(Sketcher.Constraint("Coincident", 1, 2, 2, 1))
sketch9.addConstraint(Sketcher.Constraint("Coincident", 2, 2, 3, 1))
sketch9.addConstraint(Sketcher.Constraint("Coincident", 3, 2, 4, 1))
sketch9.addConstraint(Sketcher.Constraint("Coincident", 4, 2, 5, 1))
sketch9.addConstraint(Sketcher.Constraint("Coincident", 5, 2, 6, 1))
sketch9.addConstraint(Sketcher.Constraint("Coincident", 6, 2, 7, 1))
sketch9.addConstraint(Sketcher.Constraint("Coincident", 7, 2, 0, 1))
sketch9.addConstraint(Sketcher.Constraint("Vertical", 0))
sketch9.addConstraint(Sketcher.Constraint("Horizontal", 1))
sketch9.addConstraint(Sketcher.Constraint("Vertical", 2))
sketch9.addConstraint(Sketcher.Constraint("Horizontal", 3))
sketch9.addConstraint(Sketcher.Constraint("Vertical", 4))
sketch9.addConstraint(Sketcher.Constraint("Horizontal", 5))
sketch9.addConstraint(Sketcher.Constraint("Vertical", 6))
sketch9.addConstraint(Sketcher.Constraint("Horizontal", 7))
sketch9.addConstraint(Sketcher.Constraint("DistanceX", 1, 2, 1, 1, 9.0))
sketch9.addConstraint(Sketcher.Constraint("DistanceY", 2, 1, 2, 2, 33.7))
sketch9.addConstraint(Sketcher.Constraint("DistanceX", 3, 1, 3, 2, 24.25))
sketch9.addConstraint(Sketcher.Constraint("DistanceY", 0, 2, 0, 1, 8.75))
sketch9.addConstraint(Sketcher.Constraint("DistanceY", 4, 2, 4, 1, 5.75))
sketch9.addConstraint(Sketcher.Constraint("DistanceX", 2, 2, 5, 2, 5.75))
sketch9.addConstraint(Sketcher.Constraint("DistanceX", 0, 2, -1, 1, 14.681))
sketch9.addConstraint(Sketcher.Constraint("DistanceY", 0, 2, -1, 1, 14.1727))
pocket7 = body.newObject("PartDesign::Pocket", "Pocket006")
pocket7.Profile = sketch9
pocket7.Length = 0.5
pocket7.Reversed = True

doc.recompute()
